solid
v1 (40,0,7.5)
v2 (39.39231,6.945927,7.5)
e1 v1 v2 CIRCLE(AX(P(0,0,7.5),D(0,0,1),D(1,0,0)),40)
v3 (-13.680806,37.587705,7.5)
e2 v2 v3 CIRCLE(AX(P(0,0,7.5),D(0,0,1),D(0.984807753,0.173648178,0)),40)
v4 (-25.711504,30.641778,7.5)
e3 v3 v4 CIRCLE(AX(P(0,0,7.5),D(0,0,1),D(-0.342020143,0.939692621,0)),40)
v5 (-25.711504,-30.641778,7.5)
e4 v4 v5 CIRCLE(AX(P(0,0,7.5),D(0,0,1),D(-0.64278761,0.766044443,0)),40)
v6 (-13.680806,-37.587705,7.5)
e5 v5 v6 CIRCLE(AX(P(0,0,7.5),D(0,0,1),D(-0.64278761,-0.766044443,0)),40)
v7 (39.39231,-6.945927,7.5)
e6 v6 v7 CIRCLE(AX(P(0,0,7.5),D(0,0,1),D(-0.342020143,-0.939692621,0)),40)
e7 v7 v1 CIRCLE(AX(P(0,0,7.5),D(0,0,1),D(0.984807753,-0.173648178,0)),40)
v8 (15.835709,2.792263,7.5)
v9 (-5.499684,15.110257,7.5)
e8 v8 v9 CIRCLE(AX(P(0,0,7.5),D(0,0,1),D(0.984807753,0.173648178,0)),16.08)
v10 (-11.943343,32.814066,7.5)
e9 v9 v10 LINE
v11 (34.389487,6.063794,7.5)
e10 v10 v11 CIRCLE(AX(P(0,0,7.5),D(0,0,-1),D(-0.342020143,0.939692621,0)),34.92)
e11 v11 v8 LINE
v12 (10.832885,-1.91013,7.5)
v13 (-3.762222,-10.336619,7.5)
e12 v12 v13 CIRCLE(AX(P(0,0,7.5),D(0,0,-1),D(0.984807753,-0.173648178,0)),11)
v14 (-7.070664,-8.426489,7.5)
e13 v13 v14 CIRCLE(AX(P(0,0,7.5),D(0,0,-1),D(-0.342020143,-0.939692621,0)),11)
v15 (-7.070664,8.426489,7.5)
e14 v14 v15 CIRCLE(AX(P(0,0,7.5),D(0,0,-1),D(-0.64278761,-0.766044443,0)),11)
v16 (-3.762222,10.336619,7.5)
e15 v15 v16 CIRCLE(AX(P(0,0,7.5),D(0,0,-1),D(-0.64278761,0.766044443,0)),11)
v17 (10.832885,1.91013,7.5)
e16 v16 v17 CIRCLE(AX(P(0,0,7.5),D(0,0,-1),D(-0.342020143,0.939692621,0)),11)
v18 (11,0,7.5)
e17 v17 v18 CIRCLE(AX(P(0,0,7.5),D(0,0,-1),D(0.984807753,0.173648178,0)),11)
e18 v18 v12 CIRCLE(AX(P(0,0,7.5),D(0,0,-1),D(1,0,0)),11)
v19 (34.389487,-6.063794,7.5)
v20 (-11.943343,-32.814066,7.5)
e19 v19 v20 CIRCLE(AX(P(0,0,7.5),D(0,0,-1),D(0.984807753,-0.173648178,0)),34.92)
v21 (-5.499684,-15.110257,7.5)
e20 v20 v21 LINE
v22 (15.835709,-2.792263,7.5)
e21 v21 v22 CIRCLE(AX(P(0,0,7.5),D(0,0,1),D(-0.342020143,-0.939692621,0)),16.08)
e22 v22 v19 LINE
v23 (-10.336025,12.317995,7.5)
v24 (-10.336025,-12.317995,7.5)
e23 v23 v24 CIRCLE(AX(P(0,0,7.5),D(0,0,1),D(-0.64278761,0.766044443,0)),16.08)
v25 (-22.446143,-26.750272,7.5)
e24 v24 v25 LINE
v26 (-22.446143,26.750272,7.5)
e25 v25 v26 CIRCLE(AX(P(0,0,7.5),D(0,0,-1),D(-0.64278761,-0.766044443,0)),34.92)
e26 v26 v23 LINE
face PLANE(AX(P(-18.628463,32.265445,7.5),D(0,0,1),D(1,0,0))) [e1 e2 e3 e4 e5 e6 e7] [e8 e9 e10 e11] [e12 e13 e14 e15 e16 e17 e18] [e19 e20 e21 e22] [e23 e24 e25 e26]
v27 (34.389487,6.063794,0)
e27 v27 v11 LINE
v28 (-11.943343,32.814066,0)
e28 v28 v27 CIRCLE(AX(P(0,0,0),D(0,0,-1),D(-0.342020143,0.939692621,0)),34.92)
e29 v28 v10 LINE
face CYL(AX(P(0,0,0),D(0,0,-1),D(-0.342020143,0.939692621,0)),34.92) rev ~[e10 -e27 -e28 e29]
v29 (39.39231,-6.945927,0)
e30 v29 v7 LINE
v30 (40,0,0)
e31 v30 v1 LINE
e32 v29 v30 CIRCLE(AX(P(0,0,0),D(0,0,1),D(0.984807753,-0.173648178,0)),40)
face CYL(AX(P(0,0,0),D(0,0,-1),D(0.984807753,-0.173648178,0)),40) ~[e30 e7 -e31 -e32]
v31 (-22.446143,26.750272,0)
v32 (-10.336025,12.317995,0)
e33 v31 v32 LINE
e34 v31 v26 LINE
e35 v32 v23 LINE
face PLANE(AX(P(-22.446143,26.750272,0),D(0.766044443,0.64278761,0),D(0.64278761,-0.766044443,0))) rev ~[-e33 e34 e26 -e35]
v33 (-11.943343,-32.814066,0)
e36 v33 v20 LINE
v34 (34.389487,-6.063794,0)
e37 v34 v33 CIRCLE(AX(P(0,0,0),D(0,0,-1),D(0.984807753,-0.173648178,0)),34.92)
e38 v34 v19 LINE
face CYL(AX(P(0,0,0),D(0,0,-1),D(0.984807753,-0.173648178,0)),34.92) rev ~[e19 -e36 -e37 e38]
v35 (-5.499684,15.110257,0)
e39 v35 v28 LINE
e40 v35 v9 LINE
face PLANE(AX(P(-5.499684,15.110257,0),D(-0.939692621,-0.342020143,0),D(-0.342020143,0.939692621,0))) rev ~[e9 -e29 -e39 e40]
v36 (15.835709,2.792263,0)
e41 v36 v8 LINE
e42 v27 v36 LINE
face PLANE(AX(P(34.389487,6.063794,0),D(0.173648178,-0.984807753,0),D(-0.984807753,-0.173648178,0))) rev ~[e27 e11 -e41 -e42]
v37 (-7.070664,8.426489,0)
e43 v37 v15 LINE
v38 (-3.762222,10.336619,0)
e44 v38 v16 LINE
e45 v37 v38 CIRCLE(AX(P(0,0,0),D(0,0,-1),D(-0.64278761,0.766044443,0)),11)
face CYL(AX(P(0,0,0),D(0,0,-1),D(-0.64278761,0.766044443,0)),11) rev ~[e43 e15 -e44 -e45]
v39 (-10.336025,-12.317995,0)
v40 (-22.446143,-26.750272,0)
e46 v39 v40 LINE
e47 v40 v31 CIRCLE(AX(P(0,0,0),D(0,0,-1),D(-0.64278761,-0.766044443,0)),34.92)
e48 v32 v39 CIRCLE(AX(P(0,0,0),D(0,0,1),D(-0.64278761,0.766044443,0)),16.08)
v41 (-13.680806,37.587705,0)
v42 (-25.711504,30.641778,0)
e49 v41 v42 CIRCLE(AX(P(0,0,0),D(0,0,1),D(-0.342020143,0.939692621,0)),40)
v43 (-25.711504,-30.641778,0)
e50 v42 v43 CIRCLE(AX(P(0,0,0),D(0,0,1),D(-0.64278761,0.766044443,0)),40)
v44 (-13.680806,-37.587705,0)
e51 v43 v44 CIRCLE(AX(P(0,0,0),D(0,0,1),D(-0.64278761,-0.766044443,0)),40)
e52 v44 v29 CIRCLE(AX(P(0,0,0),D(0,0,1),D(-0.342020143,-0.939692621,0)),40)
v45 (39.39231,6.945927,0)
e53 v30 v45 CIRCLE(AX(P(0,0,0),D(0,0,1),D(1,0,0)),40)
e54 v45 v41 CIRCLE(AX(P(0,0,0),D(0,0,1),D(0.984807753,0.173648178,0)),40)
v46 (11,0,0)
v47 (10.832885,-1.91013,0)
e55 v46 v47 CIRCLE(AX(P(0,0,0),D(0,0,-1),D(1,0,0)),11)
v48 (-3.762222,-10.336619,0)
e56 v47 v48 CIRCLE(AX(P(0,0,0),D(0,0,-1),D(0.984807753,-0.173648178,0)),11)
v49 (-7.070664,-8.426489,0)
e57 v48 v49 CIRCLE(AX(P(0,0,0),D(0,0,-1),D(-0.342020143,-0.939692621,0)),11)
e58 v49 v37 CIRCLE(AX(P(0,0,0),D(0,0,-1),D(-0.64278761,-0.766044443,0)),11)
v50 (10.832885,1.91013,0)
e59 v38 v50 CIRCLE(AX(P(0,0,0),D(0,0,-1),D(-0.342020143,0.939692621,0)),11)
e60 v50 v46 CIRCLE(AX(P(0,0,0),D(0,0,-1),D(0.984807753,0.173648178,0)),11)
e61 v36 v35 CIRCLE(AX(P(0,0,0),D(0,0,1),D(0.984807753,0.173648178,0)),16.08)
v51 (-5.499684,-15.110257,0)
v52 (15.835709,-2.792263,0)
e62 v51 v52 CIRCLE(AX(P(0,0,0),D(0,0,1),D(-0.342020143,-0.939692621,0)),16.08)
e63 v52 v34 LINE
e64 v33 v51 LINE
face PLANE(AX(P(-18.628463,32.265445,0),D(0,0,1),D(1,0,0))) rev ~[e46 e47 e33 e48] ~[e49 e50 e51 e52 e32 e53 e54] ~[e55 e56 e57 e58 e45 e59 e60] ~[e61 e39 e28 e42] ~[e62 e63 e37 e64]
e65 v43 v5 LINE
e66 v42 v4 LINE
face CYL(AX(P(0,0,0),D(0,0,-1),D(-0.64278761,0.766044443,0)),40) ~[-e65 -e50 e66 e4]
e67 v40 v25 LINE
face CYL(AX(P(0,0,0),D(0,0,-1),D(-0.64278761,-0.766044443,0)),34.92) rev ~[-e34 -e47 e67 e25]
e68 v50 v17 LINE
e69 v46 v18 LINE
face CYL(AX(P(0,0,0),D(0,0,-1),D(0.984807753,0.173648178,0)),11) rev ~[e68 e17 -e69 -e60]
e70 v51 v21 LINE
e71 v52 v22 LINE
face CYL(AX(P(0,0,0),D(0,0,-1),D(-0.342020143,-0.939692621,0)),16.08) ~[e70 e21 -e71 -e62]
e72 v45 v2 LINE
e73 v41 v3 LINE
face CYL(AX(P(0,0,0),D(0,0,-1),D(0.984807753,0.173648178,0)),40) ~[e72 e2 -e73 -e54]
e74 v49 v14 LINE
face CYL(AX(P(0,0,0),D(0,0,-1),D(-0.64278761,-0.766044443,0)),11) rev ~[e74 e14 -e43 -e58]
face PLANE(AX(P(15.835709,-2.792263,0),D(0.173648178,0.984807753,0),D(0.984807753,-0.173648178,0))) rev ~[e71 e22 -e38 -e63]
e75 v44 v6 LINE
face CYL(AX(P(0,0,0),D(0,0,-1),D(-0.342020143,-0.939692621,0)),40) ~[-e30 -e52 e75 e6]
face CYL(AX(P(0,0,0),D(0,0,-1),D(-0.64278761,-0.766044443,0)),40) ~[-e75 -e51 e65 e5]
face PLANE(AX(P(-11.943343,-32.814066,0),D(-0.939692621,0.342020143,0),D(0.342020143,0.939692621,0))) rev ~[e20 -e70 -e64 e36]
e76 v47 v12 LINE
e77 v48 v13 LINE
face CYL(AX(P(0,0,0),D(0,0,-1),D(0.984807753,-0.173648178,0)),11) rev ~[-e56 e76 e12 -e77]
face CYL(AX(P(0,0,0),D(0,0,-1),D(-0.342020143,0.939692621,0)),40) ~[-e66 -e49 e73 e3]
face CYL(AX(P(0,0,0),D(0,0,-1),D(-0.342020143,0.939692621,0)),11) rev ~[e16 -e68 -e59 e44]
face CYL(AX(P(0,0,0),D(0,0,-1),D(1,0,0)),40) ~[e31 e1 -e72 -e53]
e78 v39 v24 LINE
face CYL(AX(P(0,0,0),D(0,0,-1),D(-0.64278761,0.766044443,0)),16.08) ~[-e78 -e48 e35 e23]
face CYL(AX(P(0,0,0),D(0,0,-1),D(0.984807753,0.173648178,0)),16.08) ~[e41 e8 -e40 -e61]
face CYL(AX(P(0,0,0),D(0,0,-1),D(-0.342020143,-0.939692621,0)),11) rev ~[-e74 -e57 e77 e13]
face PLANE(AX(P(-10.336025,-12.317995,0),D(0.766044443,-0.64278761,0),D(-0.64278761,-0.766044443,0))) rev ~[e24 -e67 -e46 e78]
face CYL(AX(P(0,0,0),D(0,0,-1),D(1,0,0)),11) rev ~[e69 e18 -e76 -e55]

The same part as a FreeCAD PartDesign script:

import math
import FreeCAD as App
import Part
import Sketcher
Q = App.Units.Quantity

doc = App.newDocument("Part")
body = doc.addObject("PartDesign::Body", "Body")

# Sketch on XY plane
sketch1 = doc.addObject("Sketcher::SketchObject", "Sketch")
body.addObject(sketch1)
sketch1.AttachmentSupport = (doc.XY_Plane, [""])
sketch1.MapMode = "FlatFace"
sketch1.addGeometry([
    Part.ArcOfCircle(Part.Circle(App.Vector(0, 0, 0), App.Vector(0, 0, 1), 40), math.radians(130), math.radians(230)),  # 0
    Part.ArcOfCircle(Part.Circle(App.Vector(0, 0, 0), App.Vector(0, 0, 1), 40), math.radians(-130), math.radians(-110)),  # 1
    Part.ArcOfCircle(Part.Circle(App.Vector(0, 0, 0), App.Vector(0, 0, 1), 40), math.radians(-110), math.radians(-10)),  # 2
    Part.ArcOfCircle(Part.Circle(App.Vector(0, 0, 0), App.Vector(0, 0, 1), 40), math.radians(-10), math.radians(0)),  # 3
    Part.ArcOfCircle(Part.Circle(App.Vector(0, 0, 0), App.Vector(0, 0, 1), 40), math.radians(0), math.radians(10)),  # 4
    Part.ArcOfCircle(Part.Circle(App.Vector(0, 0, 0), App.Vector(0, 0, 1), 40), math.radians(10), math.radians(110)),  # 5
    Part.ArcOfCircle(Part.Circle(App.Vector(0, 0, 0), App.Vector(0, 0, 1), 40), math.radians(110), math.radians(130)),  # 6
    Part.LineSegment(App.Vector(-11.9, -32.8, 0), App.Vector(-5.5, -15.1, 0)),  # 7
    Part.ArcOfCircle(Part.Circle(App.Vector(0, 0, 0), App.Vector(0, 0, 1), 16.1), math.radians(-110), math.radians(-10)),  # 8
    Part.LineSegment(App.Vector(15.8, -2.8, 0), App.Vector(34.4, -6.1, 0)),  # 9
    Part.ArcOfCircle(Part.Circle(App.Vector(0, 0, 0), App.Vector(0, 0, 1), 34.9), math.radians(-110), math.radians(-10)),  # 10
    Part.LineSegment(App.Vector(-10.3, -12.3, 0), App.Vector(-22.4, -26.8, 0)),  # 11
    Part.ArcOfCircle(Part.Circle(App.Vector(0, 0, 0), App.Vector(0, 0, 1), 34.9), math.radians(130), math.radians(230)),  # 12
    Part.LineSegment(App.Vector(-22.4, 26.8, 0), App.Vector(-10.3, 12.3, 0)),  # 13
    Part.ArcOfCircle(Part.Circle(App.Vector(0, 0, 0), App.Vector(0, 0, 1), 16.1), math.radians(130), math.radians(230)),  # 14
    Part.ArcOfCircle(Part.Circle(App.Vector(0, 0, 0), App.Vector(0, 0, 1), 11), math.radians(110), math.radians(130)),  # 15
    Part.ArcOfCircle(Part.Circle(App.Vector(0, 0, 0), App.Vector(0, 0, 1), 11), math.radians(10), math.radians(110)),  # 16
    Part.ArcOfCircle(Part.Circle(App.Vector(0, 0, 0), App.Vector(0, 0, 1), 11), math.radians(0), math.radians(10)),  # 17
    Part.ArcOfCircle(Part.Circle(App.Vector(0, 0, 0), App.Vector(0, 0, 1), 11), math.radians(-10), math.radians(0)),  # 18
    Part.ArcOfCircle(Part.Circle(App.Vector(0, 0, 0), App.Vector(0, 0, 1), 11), math.radians(-110), math.radians(-10)),  # 19
    Part.ArcOfCircle(Part.Circle(App.Vector(0, 0, 0), App.Vector(0, 0, 1), 11), math.radians(-130), math.radians(-110)),  # 20
    Part.ArcOfCircle(Part.Circle(App.Vector(0, 0, 0), App.Vector(0, 0, 1), 11), math.radians(130), math.radians(230)),  # 21
    Part.ArcOfCircle(Part.Circle(App.Vector(0, 0, 0), App.Vector(0, 0, 1), 34.9), math.radians(10), math.radians(110)),  # 22
    Part.LineSegment(App.Vector(34.4, 6.1, 0), App.Vector(15.8, 2.8, 0)),  # 23
    Part.ArcOfCircle(Part.Circle(App.Vector(0, 0, 0), App.Vector(0, 0, 1), 16.1), math.radians(10), math.radians(110)),  # 24
    Part.LineSegment(App.Vector(-5.5, 15.1, 0), App.Vector(-11.9, 32.8, 0)),  # 25
], False)
sketch1.addConstraint([
    Sketcher.Constraint("Tangent", 0, 2, 1, 1),
    Sketcher.Constraint("Tangent", 1, 2, 2, 1),
    Sketcher.Constraint("Tangent", 2, 2, 3, 1),
    Sketcher.Constraint("Tangent", 3, 2, 4, 1),
    Sketcher.Constraint("Tangent", 4, 2, 5, 1),
    Sketcher.Constraint("Tangent", 5, 2, 6, 1),
    Sketcher.Constraint("Tangent", 6, 2, 0, 1),
    Sketcher.Constraint("Coincident", 7, 2, 8, 1),
    Sketcher.Constraint("Coincident", 8, 2, 9, 1),
    Sketcher.Constraint("Coincident", 9, 2, 10, 2),
    Sketcher.Constraint("Coincident", 10, 1, 7, 1),
    Sketcher.Constraint("Coincident", 11, 2, 12, 2),
    Sketcher.Constraint("Coincident", 12, 1, 13, 1),
    Sketcher.Constraint("Coincident", 13, 2, 14, 1),
    Sketcher.Constraint("Coincident", 14, 2, 11, 1),
    Sketcher.Constraint("Tangent", 15, 1, 16, 2),
    Sketcher.Constraint("Tangent", 16, 1, 17, 2),
    Sketcher.Constraint("Tangent", 17, 1, 18, 2),
    Sketcher.Constraint("Tangent", 18, 1, 19, 2),
    Sketcher.Constraint("Tangent", 19, 1, 20, 2),
    Sketcher.Constraint("Tangent", 20, 1, 21, 2),
    Sketcher.Constraint("Tangent", 21, 1, 15, 2),
    Sketcher.Constraint("Coincident", 22, 1, 23, 1),
    Sketcher.Constraint("Coincident", 23, 2, 24, 1),
    Sketcher.Constraint("Coincident", 24, 2, 25, 1),
    Sketcher.Constraint("Coincident", 25, 2, 22, 2),
    Sketcher.Constraint("Coincident", 0, 3, -1, 1),
    Sketcher.Constraint("Coincident", 2, 3, -1, 1),
    Sketcher.Constraint("Coincident", 4, 3, -1, 1),
    Sketcher.Constraint("Coincident", 8, 3, -1, 1),
    Sketcher.Constraint("Coincident", 10, 3, -1, 1),
    Sketcher.Constraint("Coincident", 12, 3, -1, 1),
    Sketcher.Constraint("Coincident", 14, 3, -1, 1),
    Sketcher.Constraint("Coincident", 15, 3, -1, 1),
    Sketcher.Constraint("Coincident", 17, 3, -1, 1),
    Sketcher.Constraint("Coincident", 19, 3, -1, 1),
    Sketcher.Constraint("Coincident", 22, 3, -1, 1),
    Sketcher.Constraint("Coincident", 24, 3, -1, 1),
    Sketcher.Constraint("Equal", 10, 12),
    Sketcher.Constraint("Equal", 8, 14),
    Sketcher.Constraint("Equal", 12, 22),
    Sketcher.Constraint("Equal", 14, 24),
    Sketcher.Constraint("PointOnObject", 3, 2, -1),
    Sketcher.Constraint("PointOnObject", 17, 1, -1),
    Sketcher.Constraint("Vertical", 2, 2, 4, 2),
    Sketcher.Constraint("Vertical", 1, 2, 5, 2),
    Sketcher.Constraint("Vertical", 0, 2, 6, 2),
    Sketcher.Constraint("Vertical", 11, 2, 12, 1),
    Sketcher.Constraint("Vertical", 13, 2, 14, 2),
    Sketcher.Constraint("Vertical", 16, 1, 18, 1),
    Sketcher.Constraint("Vertical", 15, 1, 19, 1),
    Sketcher.Constraint("Vertical", 20, 1, 21, 1),
    Sketcher.Constraint("Vertical", 9, 2, 22, 1),
    Sketcher.Constraint("Vertical", 8, 2, 23, 2),
    Sketcher.Constraint("Vertical", 7, 2, 24, 2),
    Sketcher.Constraint("Vertical", 10, 1, 25, 2),
    Sketcher.Constraint("Radius", 0, 40.0),
    Sketcher.Constraint("Radius", 15, 11.0),
    Sketcher.Constraint("Angle", 7, Q("70 deg")),
    Sketcher.Constraint("Angle", 9, Q("-10 deg")),
    Sketcher.Constraint("Angle", 11, Q("-130 deg")),
    Sketcher.Constraint("Radius", 8, 16.08),
    Sketcher.Constraint("Radius", 10, 34.92),
    Sketcher.Constraint("DistanceX", 0, 2, 1, 2, 12.030699),
    Sketcher.Constraint("DistanceX", 11, 2, 10, 1, 10.5028),
    Sketcher.Constraint("DistanceX", -1, 1, 2, 2, 39.39231),
    Sketcher.Constraint("DistanceX", -1, 1, 8, 2, 15.835709),
    Sketcher.Constraint("DistanceY", 11, 2, -1, 1, 26.750272),
    Sketcher.Constraint("DistanceX", 15, 1, -1, 1, 3.762222),
    Sketcher.Constraint("DistanceY", -1, 1, 16, 1, 1.91013),
    Sketcher.Constraint("DistanceY", 20, 1, -1, 1, 8.426489),
    Sketcher.Constraint("DistanceY", 1, 2, 10, 1, 4.773639),
])
pad1 = doc.addObject("PartDesign::Pad", "Pad")
body.addObject(pad1)
pad1.Profile = sketch1
pad1.Length = 7.5

doc.recompute()
